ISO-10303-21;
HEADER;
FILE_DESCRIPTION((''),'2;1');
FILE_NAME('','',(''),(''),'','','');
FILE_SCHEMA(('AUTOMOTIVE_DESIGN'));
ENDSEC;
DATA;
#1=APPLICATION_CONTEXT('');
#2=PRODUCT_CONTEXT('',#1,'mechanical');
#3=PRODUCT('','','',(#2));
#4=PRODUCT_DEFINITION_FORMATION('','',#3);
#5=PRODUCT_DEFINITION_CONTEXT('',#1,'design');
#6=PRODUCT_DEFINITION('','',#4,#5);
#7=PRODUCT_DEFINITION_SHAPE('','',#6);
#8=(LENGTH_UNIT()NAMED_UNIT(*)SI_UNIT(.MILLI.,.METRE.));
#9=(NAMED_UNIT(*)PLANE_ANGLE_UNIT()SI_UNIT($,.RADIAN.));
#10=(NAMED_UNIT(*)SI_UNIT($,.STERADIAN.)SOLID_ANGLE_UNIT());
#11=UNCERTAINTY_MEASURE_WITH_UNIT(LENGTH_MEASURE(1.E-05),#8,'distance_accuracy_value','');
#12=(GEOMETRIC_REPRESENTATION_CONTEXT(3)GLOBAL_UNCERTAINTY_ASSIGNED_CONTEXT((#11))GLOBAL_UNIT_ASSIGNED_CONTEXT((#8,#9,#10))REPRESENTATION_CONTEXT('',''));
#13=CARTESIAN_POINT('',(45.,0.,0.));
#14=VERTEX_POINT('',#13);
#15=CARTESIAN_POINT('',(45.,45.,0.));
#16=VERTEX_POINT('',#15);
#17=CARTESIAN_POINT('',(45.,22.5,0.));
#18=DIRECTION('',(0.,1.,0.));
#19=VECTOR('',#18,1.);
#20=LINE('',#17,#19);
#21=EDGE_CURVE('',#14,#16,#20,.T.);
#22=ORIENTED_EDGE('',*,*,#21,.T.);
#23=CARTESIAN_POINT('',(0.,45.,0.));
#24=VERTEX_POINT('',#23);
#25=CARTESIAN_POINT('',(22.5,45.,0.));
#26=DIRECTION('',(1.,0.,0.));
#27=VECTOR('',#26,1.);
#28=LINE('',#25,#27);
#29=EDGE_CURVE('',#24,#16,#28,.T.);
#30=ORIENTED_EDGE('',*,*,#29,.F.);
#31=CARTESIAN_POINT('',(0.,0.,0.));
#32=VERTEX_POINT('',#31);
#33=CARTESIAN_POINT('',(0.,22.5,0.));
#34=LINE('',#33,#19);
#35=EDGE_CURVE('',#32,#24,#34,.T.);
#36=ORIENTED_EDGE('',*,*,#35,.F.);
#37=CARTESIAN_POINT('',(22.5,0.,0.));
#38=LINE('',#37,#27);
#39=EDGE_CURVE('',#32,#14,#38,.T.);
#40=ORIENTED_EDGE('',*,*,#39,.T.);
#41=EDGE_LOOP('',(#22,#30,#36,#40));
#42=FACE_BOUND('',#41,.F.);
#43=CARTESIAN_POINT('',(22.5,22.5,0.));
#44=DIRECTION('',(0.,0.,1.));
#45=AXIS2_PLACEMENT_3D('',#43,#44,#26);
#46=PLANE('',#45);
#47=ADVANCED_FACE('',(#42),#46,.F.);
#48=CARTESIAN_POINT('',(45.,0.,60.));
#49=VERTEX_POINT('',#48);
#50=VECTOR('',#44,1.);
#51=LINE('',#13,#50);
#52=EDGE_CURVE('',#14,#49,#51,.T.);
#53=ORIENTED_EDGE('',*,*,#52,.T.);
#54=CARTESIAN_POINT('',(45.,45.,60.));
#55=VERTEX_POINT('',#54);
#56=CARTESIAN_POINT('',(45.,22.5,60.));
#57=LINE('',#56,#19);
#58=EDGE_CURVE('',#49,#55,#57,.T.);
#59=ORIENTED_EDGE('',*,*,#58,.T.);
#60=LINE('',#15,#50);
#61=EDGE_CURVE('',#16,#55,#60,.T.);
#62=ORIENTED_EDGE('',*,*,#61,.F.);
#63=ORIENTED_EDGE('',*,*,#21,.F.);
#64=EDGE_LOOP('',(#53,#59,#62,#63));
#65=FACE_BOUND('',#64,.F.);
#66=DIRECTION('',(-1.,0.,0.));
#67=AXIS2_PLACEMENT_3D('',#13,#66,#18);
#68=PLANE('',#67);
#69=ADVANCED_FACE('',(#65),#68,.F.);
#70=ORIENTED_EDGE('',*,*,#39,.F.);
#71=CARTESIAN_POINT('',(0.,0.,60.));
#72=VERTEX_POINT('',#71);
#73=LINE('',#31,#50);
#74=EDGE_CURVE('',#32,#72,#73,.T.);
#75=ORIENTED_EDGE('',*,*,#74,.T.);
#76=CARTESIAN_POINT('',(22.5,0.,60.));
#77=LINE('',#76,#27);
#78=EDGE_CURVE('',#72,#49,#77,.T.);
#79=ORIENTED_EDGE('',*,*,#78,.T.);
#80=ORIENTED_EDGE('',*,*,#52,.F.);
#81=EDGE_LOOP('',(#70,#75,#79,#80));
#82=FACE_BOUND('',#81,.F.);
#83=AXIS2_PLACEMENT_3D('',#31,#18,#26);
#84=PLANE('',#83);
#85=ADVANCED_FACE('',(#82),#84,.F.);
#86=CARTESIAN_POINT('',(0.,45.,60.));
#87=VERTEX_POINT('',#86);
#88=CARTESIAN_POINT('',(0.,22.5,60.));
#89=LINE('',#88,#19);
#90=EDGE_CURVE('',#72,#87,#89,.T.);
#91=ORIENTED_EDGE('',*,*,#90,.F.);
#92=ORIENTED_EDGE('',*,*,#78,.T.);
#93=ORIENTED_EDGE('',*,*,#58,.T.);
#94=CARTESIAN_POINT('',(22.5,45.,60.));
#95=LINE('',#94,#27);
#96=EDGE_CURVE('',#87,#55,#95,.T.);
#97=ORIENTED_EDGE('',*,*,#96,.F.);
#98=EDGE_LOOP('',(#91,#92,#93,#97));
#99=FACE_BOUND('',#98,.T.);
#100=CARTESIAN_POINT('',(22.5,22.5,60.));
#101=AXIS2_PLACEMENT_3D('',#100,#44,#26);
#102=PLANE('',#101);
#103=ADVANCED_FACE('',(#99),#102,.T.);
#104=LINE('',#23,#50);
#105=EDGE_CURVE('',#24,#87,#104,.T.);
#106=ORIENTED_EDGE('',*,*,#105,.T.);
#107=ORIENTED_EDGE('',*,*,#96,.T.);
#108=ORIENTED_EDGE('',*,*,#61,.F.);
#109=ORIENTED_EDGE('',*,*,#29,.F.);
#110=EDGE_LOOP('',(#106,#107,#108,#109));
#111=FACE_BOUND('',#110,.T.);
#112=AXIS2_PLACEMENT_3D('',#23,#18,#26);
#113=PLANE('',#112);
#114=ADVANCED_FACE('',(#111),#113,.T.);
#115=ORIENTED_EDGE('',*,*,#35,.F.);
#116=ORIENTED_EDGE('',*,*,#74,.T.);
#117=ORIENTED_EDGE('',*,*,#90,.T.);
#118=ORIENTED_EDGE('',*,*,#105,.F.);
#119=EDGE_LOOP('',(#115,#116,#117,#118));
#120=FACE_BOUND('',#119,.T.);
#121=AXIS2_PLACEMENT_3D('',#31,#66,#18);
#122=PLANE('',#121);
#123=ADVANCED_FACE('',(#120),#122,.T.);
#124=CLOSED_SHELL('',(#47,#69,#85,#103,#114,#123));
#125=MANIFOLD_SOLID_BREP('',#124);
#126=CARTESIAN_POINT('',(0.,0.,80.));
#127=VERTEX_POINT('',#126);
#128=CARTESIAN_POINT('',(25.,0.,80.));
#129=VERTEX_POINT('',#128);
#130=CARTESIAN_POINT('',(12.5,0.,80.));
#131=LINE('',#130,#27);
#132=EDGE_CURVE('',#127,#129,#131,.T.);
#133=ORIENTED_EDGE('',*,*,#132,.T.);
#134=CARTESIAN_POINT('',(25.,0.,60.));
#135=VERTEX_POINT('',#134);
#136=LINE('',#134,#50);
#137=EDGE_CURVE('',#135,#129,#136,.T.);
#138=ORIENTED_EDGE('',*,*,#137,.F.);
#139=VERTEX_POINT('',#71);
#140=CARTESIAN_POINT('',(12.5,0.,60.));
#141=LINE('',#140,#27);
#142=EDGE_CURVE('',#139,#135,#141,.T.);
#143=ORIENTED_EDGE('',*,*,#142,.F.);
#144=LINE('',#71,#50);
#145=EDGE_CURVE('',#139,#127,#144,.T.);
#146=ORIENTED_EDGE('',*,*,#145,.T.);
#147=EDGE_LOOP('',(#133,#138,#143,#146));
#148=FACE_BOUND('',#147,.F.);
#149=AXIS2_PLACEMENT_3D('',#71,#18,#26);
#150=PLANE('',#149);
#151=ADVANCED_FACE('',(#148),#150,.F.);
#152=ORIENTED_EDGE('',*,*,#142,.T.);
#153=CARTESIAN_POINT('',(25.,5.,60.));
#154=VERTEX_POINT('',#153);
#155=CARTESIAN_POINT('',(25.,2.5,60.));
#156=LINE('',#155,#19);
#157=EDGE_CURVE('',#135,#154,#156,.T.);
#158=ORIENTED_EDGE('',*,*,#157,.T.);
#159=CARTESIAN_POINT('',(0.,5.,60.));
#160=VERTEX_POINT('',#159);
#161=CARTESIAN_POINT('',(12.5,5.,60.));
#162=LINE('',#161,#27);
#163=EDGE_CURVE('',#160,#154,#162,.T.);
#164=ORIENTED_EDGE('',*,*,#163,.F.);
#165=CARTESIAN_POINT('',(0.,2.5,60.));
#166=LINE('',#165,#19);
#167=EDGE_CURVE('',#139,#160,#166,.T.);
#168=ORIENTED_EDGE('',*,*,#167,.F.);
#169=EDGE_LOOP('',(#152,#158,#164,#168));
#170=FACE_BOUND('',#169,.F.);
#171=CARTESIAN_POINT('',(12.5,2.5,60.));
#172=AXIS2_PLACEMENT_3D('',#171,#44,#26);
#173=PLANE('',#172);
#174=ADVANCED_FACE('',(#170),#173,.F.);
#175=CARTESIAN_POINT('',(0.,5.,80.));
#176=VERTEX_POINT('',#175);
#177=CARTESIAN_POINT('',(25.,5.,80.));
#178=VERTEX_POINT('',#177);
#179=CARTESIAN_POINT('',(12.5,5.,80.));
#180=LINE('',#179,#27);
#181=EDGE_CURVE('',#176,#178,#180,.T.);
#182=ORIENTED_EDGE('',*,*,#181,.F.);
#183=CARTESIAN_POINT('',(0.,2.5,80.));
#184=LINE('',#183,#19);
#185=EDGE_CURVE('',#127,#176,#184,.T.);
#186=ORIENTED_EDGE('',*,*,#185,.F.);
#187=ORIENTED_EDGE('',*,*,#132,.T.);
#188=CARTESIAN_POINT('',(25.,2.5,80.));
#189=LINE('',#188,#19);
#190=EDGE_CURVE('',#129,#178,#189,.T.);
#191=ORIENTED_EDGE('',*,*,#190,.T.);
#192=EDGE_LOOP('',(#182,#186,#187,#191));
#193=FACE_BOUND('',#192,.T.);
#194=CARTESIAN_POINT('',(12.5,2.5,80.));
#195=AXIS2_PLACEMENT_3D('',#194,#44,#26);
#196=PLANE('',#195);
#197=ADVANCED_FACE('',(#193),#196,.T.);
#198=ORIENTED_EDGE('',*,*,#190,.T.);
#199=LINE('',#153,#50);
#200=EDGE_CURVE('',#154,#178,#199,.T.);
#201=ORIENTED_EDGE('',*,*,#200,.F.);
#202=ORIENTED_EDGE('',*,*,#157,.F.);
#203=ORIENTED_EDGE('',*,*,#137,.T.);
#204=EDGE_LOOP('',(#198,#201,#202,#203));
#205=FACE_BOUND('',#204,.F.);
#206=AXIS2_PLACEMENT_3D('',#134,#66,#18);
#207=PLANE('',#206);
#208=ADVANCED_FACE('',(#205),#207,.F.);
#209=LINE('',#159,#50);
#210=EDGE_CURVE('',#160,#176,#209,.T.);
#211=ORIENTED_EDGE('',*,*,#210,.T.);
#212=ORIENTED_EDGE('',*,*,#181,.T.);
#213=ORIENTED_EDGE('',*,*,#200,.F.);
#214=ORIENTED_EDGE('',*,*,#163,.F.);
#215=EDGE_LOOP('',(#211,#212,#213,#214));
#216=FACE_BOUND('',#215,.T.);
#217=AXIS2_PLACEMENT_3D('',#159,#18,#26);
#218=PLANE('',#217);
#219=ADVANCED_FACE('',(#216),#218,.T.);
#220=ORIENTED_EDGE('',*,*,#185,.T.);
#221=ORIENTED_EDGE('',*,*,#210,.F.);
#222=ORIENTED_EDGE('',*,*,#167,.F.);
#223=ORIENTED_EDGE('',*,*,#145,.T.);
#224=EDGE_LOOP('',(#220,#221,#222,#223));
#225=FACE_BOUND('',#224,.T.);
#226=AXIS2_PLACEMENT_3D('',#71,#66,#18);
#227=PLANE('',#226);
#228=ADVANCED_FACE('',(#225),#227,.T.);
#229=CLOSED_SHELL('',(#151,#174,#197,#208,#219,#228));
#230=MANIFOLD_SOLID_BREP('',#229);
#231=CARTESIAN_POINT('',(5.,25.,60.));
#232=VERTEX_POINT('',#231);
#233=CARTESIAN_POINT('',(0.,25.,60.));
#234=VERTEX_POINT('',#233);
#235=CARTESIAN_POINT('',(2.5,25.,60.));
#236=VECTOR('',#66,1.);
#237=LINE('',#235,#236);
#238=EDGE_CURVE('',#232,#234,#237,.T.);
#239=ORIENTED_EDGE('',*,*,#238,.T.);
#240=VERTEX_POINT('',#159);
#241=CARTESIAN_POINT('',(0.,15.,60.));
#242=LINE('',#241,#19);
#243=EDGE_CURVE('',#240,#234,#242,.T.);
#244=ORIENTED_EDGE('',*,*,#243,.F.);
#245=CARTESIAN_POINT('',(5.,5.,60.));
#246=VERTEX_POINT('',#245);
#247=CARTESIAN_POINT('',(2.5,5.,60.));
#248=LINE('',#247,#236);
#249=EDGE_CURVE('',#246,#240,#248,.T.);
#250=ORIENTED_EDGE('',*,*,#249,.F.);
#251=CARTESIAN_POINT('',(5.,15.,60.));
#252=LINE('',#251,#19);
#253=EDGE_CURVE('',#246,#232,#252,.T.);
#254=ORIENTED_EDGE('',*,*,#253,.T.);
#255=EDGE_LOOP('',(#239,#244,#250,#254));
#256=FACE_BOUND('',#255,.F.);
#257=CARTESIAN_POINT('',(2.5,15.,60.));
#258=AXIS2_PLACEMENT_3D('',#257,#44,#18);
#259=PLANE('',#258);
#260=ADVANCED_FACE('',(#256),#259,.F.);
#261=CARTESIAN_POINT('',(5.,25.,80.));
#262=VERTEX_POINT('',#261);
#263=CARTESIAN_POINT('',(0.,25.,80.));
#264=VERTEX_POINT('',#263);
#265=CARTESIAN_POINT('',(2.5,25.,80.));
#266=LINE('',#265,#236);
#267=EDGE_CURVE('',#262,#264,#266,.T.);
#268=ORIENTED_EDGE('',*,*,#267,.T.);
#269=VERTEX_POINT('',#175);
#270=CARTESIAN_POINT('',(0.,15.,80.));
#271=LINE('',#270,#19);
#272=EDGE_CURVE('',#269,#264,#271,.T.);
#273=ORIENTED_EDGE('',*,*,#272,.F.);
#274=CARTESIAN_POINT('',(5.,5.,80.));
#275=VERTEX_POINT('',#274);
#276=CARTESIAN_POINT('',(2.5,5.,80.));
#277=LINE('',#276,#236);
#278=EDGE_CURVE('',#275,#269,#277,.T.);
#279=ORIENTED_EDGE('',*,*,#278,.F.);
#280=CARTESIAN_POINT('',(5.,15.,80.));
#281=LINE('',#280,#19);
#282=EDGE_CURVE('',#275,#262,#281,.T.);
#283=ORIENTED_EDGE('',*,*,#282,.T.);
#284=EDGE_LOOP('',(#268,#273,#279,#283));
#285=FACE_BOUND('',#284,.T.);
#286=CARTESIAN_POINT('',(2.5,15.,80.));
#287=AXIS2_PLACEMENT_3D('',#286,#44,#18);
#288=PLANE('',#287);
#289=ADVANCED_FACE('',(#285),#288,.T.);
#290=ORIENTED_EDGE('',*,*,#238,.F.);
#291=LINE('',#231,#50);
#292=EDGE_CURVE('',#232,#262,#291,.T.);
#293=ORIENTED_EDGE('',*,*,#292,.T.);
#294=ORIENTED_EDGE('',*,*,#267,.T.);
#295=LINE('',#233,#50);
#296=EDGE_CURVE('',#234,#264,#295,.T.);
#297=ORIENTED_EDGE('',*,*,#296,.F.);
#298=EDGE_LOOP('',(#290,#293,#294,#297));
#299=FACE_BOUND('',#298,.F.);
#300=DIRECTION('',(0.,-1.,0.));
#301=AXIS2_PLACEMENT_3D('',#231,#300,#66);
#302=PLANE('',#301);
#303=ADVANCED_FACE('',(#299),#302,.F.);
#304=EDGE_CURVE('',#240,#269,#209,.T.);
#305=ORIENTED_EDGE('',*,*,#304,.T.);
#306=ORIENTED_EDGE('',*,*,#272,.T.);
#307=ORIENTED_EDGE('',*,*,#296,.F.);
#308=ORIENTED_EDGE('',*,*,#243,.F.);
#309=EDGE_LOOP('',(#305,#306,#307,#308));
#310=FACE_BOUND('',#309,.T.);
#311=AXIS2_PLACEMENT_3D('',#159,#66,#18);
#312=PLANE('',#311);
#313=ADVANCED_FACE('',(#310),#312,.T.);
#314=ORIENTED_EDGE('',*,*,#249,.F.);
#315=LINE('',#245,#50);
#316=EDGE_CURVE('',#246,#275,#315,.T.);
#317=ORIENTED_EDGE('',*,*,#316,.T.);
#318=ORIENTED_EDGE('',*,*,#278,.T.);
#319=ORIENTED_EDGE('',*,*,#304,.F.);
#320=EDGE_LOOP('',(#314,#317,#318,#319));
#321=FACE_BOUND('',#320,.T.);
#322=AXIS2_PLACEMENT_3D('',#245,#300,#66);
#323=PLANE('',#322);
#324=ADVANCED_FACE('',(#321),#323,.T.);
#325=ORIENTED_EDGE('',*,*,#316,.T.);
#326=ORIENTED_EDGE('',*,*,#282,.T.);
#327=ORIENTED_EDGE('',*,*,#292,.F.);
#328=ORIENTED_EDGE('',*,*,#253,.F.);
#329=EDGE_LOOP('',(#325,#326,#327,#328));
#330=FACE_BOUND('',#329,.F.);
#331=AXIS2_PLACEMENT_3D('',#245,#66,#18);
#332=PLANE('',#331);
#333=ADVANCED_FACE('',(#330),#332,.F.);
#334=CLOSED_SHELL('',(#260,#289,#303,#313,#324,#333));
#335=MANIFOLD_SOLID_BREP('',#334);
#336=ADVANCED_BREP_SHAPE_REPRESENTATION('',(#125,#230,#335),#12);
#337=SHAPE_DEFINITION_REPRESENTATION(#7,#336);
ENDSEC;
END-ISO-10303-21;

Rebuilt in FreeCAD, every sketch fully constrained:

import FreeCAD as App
import Part
import Sketcher
Q = App.Units.Quantity


def add_polygon(sketch, points):
    """Adds a closed chain of lines whose ends are joined by coincident constraints."""
    first, n = sketch.GeometryCount, len(points)
    for a, b in zip(points, points[1:] + points[:1]):
        sketch.addGeometry(Part.LineSegment(App.Vector(*a, 0), App.Vector(*b, 0)), False)
    for i in range(n):
        sketch.addConstraint(Sketcher.Constraint("Coincident", first + i, 2, first + (i + 1) % n, 1))

doc = App.newDocument("Part")
body = doc.addObject("PartDesign::Body", "Body")

# Sketch on XY plane
sketch1 = body.newObject("Sketcher::SketchObject", "Sketch")
sketch1.AttachmentSupport = (doc.getObject("XY_Plane"), [""])
sketch1.MapMode = "FlatFace"
add_polygon(sketch1, [(0, 45), (0, 0), (45, 0), (45, 45)])  # lines 0-3
sketch1.addConstraint(Sketcher.Constraint("Vertical", 0))
sketch1.addConstraint(Sketcher.Constraint("Horizontal", 1))
sketch1.addConstraint(Sketcher.Constraint("Vertical", 2))
sketch1.addConstraint(Sketcher.Constraint("Horizontal", 3))
sketch1.addConstraint(Sketcher.Constraint("Coincident", 0, 2, -1, 1))
sketch1.addConstraint(Sketcher.Constraint("Equal", 3, 0))
sketch1.addConstraint(Sketcher.Constraint("DistanceX", 1, 1, 1, 2, Q("45 mm")))
pad1 = body.newObject("PartDesign::Pad", "Pad")
pad1.Profile = sketch1
pad1.Length = 60
body2 = doc.addObject("PartDesign::Body", "Body001")

# Sketch on XY plane
sketch2 = body2.newObject("Sketcher::SketchObject", "Sketch001")
sketch2.AttachmentSupport = (doc.getObject("XY_Plane001"), [""])
sketch2.MapMode = "FlatFace"
sketch2.AttachmentOffset = App.Placement(App.Vector(0, 0, 60), App.Rotation())
add_polygon(sketch2, [(0, 5), (0, 0), (25, 0), (25, 5)])  # lines 0-3
sketch2.addConstraint(Sketcher.Constraint("Vertical", 0))
sketch2.addConstraint(Sketcher.Constraint("Horizontal", 1))
sketch2.addConstraint(Sketcher.Constraint("Vertical", 2))
sketch2.addConstraint(Sketcher.Constraint("Horizontal", 3))
sketch2.addConstraint(Sketcher.Constraint("Coincident", 0, 2, -1, 1))
sketch2.addConstraint(Sketcher.Constraint("DistanceX", 1, 1, 1, 2, Q("25 mm")))
sketch2.addConstraint(Sketcher.Constraint("DistanceY", 0, 2, 0, 1, Q("5 mm")))
pad2 = body2.newObject("PartDesign::Pad", "Pad001")
pad2.Profile = sketch2
pad2.Length = 20
body3 = doc.addObject("PartDesign::Body", "Body002")

# Sketch on XY plane
sketch3 = body3.newObject("Sketcher::SketchObject", "Sketch002")
sketch3.AttachmentSupport = (doc.getObject("XY_Plane002"), [""])
sketch3.MapMode = "FlatFace"
sketch3.AttachmentOffset = App.Placement(App.Vector(0, 0, 60), App.Rotation())
add_polygon(sketch3, [(0, 5), (5, 5), (5, 25), (0, 25)])  # lines 0-3
sketch3.addConstraint(Sketcher.Constraint("Horizontal", 0))
sketch3.addConstraint(Sketcher.Constraint("Vertical", 1))
sketch3.addConstraint(Sketcher.Constraint("Horizontal", 2))
sketch3.addConstraint(Sketcher.Constraint("Vertical", 3))
sketch3.addConstraint(Sketcher.Constraint("PointOnObject", 2, 2, -2))
sketch3.addConstraint(Sketcher.Constraint("DistanceX", 0, 1, 0, 2, Q("5 mm")))
sketch3.addConstraint(Sketcher.Constraint("DistanceY", 1, 1, 1, 2, Q("20 mm")))
sketch3.addConstraint(Sketcher.Constraint("DistanceY", -1, 1, 0, 2, Q("5 mm")))
pad3 = body3.newObject("PartDesign::Pad", "Pad002")
pad3.Profile = sketch3
pad3.Length = 20

doc.recompute()
